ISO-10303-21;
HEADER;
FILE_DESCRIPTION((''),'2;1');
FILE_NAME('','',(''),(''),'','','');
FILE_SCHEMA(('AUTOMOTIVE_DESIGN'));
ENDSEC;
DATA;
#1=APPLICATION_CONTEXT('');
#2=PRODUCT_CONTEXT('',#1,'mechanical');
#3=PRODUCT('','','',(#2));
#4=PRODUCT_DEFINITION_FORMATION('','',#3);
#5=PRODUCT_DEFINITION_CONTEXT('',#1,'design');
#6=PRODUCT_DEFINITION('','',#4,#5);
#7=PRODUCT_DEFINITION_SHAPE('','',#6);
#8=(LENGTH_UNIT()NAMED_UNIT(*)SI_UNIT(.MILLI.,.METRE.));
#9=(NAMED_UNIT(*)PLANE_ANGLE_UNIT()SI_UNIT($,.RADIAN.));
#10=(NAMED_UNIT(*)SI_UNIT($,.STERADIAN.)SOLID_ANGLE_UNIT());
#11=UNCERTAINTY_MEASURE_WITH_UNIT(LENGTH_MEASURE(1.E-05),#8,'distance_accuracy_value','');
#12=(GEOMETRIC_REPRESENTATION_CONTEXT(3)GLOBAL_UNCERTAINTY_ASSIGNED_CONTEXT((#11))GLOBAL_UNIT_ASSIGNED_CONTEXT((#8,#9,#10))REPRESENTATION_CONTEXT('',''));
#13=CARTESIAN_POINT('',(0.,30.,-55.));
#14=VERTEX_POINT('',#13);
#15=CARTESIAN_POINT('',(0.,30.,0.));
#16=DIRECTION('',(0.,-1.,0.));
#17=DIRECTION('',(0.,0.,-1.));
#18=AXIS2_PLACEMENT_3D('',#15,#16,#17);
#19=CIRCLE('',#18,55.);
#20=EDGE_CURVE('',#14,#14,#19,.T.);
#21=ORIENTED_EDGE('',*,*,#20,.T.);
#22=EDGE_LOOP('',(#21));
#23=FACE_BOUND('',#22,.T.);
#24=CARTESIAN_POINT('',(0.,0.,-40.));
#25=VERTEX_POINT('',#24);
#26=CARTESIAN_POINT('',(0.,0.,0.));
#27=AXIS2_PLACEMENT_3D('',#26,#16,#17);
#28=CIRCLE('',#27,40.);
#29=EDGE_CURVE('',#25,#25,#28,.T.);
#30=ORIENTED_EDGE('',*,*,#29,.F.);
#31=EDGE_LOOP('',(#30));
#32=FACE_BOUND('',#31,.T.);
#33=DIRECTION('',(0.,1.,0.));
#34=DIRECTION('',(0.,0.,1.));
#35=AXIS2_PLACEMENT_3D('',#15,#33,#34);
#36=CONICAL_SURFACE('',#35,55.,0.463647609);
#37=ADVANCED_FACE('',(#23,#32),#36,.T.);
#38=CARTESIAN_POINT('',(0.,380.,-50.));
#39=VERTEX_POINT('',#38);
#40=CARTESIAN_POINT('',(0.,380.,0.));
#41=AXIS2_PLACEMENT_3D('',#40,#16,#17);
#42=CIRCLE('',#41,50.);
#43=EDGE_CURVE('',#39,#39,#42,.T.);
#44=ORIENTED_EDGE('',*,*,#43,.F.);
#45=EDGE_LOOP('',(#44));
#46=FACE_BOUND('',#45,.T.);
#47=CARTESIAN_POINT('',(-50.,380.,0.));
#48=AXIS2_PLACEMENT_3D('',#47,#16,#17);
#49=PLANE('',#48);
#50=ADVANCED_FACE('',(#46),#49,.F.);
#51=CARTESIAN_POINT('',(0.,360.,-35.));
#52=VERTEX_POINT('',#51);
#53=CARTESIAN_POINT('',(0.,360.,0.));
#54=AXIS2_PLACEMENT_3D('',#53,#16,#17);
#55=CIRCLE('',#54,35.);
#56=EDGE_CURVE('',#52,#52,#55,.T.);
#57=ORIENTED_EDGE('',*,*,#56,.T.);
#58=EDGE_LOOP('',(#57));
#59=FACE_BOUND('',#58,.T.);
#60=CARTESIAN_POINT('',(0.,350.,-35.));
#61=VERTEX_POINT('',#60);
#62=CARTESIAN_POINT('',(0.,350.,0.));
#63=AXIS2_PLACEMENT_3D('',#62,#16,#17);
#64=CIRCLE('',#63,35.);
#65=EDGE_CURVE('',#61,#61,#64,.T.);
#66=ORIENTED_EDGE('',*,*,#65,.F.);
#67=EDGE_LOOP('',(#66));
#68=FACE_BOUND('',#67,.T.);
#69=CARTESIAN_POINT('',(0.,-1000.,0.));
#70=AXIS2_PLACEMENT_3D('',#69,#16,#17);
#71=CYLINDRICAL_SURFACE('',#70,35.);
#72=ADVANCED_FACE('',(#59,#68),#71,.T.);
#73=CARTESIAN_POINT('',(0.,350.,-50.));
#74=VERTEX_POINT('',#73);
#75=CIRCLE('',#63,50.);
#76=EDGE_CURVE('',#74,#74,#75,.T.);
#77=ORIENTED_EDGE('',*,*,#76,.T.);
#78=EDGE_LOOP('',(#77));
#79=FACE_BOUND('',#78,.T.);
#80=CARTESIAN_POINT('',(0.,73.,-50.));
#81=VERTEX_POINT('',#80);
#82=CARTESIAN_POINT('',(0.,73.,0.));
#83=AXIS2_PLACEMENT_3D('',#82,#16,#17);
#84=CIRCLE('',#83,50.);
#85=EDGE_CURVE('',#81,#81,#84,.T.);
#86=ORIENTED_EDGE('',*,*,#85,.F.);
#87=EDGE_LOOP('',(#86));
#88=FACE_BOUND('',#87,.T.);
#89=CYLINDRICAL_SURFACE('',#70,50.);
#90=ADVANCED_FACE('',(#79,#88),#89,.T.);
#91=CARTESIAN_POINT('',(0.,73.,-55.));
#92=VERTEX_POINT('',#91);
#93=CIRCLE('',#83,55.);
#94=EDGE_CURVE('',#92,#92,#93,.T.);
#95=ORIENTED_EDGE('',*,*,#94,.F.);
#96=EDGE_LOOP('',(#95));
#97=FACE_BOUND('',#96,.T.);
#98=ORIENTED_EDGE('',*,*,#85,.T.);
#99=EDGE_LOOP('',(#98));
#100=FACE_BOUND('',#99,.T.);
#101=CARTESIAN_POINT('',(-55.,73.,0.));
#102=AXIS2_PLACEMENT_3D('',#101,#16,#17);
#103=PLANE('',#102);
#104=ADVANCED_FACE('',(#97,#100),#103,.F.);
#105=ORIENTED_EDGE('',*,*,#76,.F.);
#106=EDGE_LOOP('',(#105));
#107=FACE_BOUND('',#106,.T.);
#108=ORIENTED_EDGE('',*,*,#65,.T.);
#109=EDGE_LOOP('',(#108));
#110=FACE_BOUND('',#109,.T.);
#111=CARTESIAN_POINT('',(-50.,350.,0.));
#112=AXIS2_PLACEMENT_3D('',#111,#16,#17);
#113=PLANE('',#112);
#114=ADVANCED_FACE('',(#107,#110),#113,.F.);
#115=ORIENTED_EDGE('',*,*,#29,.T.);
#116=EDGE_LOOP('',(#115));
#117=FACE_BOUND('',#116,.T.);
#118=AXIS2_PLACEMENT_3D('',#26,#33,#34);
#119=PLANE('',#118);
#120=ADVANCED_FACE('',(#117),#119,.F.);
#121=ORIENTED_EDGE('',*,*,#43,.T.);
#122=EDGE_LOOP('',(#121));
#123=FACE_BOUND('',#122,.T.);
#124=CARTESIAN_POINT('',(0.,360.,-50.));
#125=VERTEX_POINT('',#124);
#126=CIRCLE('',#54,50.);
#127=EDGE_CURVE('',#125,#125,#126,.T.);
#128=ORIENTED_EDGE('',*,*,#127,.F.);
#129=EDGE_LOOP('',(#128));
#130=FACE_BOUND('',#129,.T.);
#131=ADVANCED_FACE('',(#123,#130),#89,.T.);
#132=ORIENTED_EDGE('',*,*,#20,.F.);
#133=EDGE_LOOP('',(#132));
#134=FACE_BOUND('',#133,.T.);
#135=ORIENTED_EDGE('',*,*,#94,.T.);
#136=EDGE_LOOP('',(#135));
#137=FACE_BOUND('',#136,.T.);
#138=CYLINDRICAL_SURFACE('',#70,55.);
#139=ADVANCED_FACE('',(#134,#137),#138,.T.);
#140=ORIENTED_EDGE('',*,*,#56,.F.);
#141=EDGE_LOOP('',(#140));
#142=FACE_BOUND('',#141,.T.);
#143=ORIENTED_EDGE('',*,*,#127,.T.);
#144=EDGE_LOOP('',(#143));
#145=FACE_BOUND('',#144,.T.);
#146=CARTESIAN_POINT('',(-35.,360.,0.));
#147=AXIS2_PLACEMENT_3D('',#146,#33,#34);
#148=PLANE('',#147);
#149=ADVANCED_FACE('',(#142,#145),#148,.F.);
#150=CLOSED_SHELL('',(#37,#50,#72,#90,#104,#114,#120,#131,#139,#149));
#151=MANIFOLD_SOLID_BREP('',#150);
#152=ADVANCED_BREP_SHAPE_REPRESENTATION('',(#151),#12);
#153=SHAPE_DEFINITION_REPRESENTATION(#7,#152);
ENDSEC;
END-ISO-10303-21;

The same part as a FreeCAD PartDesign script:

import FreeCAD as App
import Part
import Sketcher

V = App.Vector
Q = App.Units.Quantity

doc = App.newDocument("Part")
params = doc.addObject("Spreadsheet::Sheet", "Params")
for row, (alias, value) in enumerate([
    ("sketch1_width", "40 mm"),
    ("sketch1_width2", "50 mm"),
    ("sketch1_width3", "15 mm"),
    ("sketch1_width4", "5 mm"),
    ("sketch1_height", "380 mm"),
    ("revolution_angle", "360 deg"),
], start=1):
    params.set(f"A{row}", alias)
    params.set(f"B{row}", "=" + value)
    params.setAlias(f"B{row}", alias)

body = doc.addObject("PartDesign::Body", "Body")

# Sketch on XY plane
sketch1 = body.newObject("Sketcher::SketchObject", "Sketch")
sketch1.AttachmentSupport = (doc.getObject("XY_Plane"), [""])
sketch1.MapMode = "FlatFace"
sketch1.addGeometry(Part.LineSegment(V(-40, 0, 0), V(0, 0, 0)), False)
sketch1.addGeometry(Part.LineSegment(V(0, 0, 0), V(0, 380, 0)), False)
sketch1.addGeometry(Part.LineSegment(V(0, 380, 0), V(-50, 380, 0)), False)
sketch1.addGeometry(Part.LineSegment(V(-50, 380, 0), V(-50, 360, 0)), False)
sketch1.addGeometry(Part.LineSegment(V(-50, 360, 0), V(-35, 360, 0)), False)
sketch1.addGeometry(Part.LineSegment(V(-35, 360, 0), V(-35, 350, 0)), False)
sketch1.addGeometry(Part.LineSegment(V(-35, 350, 0), V(-50, 350, 0)), False)
sketch1.addGeometry(Part.LineSegment(V(-50, 350, 0), V(-50, 73, 0)), False)
sketch1.addGeometry(Part.LineSegment(V(-50, 73, 0), V(-55, 73, 0)), False)
sketch1.addGeometry(Part.LineSegment(V(-55, 73, 0), V(-55, 30, 0)), False)
sketch1.addGeometry(Part.LineSegment(V(-55, 30, 0), V(-40, 0, 0)), False)
sketch1.addConstraint(Sketcher.Constraint("Coincident", 0, 2, 1, 1))
sketch1.addConstraint(Sketcher.Constraint("Coincident", 1, 2, 2, 1))
sketch1.addConstraint(Sketcher.Constraint("Coincident", 2, 2, 3, 1))
sketch1.addConstraint(Sketcher.Constraint("Coincident", 3, 2, 4, 1))
sketch1.addConstraint(Sketcher.Constraint("Coincident", 4, 2, 5, 1))
sketch1.addConstraint(Sketcher.Constraint("Coincident", 5, 2, 6, 1))
sketch1.addConstraint(Sketcher.Constraint("Coincident", 6, 2, 7, 1))
sketch1.addConstraint(Sketcher.Constraint("Coincident", 7, 2, 8, 1))
sketch1.addConstraint(Sketcher.Constraint("Coincident", 8, 2, 9, 1))
sketch1.addConstraint(Sketcher.Constraint("Coincident", 9, 2, 10, 1))
sketch1.addConstraint(Sketcher.Constraint("Coincident", 10, 2, 0, 1))
sketch1.addConstraint(Sketcher.Constraint("Horizontal", 0))
sketch1.addConstraint(Sketcher.Constraint("Vertical", 1))
sketch1.addConstraint(Sketcher.Constraint("Horizontal", 2))
sketch1.addConstraint(Sketcher.Constraint("Vertical", 3))
sketch1.addConstraint(Sketcher.Constraint("Horizontal", 4))
sketch1.addConstraint(Sketcher.Constraint("Vertical", 5))
sketch1.addConstraint(Sketcher.Constraint("Horizontal", 6))
sketch1.addConstraint(Sketcher.Constraint("Vertical", 7))
sketch1.addConstraint(Sketcher.Constraint("Horizontal", 8))
sketch1.addConstraint(Sketcher.Constraint("Vertical", 9))
sketch1.addConstraint(Sketcher.Constraint("Coincident", 0, 2, -1, 1))
sketch1.addConstraint(Sketcher.Constraint("Vertical", 3, 2, 6, 2))
sketch1.addConstraint(Sketcher.Constraint("DistanceX", 0, 1, 0, 2, Q("40 mm")))
sketch1.addConstraint(Sketcher.Constraint("DistanceX", 2, 2, 2, 1, Q("50 mm")))
sketch1.addConstraint(Sketcher.Constraint("DistanceX", 4, 1, 4, 2, Q("15 mm")))
sketch1.addConstraint(Sketcher.Constraint("DistanceX", 8, 2, 8, 1, Q("5 mm")))
sketch1.addConstraint(Sketcher.Constraint("DistanceY", 1, 1, 1, 2, Q("380 mm")))
sketch1.addConstraint(Sketcher.Constraint("DistanceY", 3, 2, 3, 1, Q("20 mm")))
sketch1.addConstraint(Sketcher.Constraint("DistanceY", 5, 2, 5, 1, Q("10 mm")))
sketch1.addConstraint(Sketcher.Constraint("DistanceY", 7, 2, 7, 1, Q("277 mm")))
sketch1.addConstraint(Sketcher.Constraint("DistanceY", 9, 2, 9, 1, Q("43 mm")))
sketch1.setExpression("Constraints[23]", "Params.sketch1_width")
sketch1.setExpression("Constraints[24]", "Params.sketch1_width2")
sketch1.setExpression("Constraints[25]", "Params.sketch1_width3")
sketch1.setExpression("Constraints[26]", "Params.sketch1_width4")
sketch1.setExpression("Constraints[27]", "Params.sketch1_height")
revolution = body.newObject("PartDesign::Revolution", "Revolution")
revolution.Profile = sketch1
revolution.ReferenceAxis = (sketch1, ["V_Axis"])
revolution.setExpression("Angle", "Params.revolution_angle")

doc.recompute()
